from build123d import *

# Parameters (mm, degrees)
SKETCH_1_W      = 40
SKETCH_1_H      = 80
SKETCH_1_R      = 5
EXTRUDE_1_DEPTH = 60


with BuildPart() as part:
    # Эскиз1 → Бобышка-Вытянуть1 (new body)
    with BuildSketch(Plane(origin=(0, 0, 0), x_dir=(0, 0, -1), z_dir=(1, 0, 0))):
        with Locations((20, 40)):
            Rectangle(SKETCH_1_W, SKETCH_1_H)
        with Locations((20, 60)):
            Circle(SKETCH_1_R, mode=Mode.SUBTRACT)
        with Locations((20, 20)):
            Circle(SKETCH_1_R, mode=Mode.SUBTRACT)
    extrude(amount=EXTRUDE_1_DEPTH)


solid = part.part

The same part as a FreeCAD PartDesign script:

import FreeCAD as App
import Part
import Sketcher

V = App.Vector


def add_polygon(sketch, points):
    """Adds a closed chain of lines whose ends are joined by coincident constraints."""
    first, n = sketch.GeometryCount, len(points)
    for a, b in zip(points, points[1:] + points[:1]):
        sketch.addGeometry(Part.LineSegment(App.Vector(*a, 0), App.Vector(*b, 0)), False)
    for i in range(n):
        sketch.addConstraint(Sketcher.Constraint("Coincident", first + i, 2, first + (i + 1) % n, 1))

doc = App.newDocument("Part")
body = doc.addObject("PartDesign::Body", "Body")

# Sketch on YZ plane
sketch1 = body.newObject("Sketcher::SketchObject", "Sketch")
sketch1.AttachmentSupport = (doc.getObject("YZ_Plane"), [""])
sketch1.MapMode = "FlatFace"
add_polygon(sketch1, [(80, 0), (0, 0), (0, -40), (80, -40)])  # lines 0-3
sketch1.addGeometry(Part.Circle(V(20, -20, 0), V(0, 0, 1), 5), False)  # 4
sketch1.addGeometry(Part.Circle(V(60, -20, 0), V(0, 0, 1), 5), False)  # 5
sketch1.addConstraint([
    Sketcher.Constraint("Horizontal", 0),
    Sketcher.Constraint("Vertical", 1),
    Sketcher.Constraint("Horizontal", 2),
    Sketcher.Constraint("Vertical", 3),
    Sketcher.Constraint("Coincident", 0, 2, -1, 1),
    Sketcher.Constraint("Equal", 4, 5),
    Sketcher.Constraint("Horizontal", 4, 3, 5, 3),
    Sketcher.Constraint("Diameter", 4, 10.0),
    Sketcher.Constraint("DistanceX", 0, 2, 0, 1, 80.0),
    Sketcher.Constraint("DistanceY", 1, 2, 1, 1, 40.0),
    Sketcher.Constraint("DistanceX", -1, 1, 4, 3, 20.0),
    Sketcher.Constraint("DistanceY", 4, 3, -1, 1, 20.0),
    Sketcher.Constraint("DistanceX", -1, 1, 5, 3, 60.0),
])
pad1 = body.newObject("PartDesign::Pad", "Pad")
pad1.Profile = sketch1
pad1.Length = 60

doc.recompute()
